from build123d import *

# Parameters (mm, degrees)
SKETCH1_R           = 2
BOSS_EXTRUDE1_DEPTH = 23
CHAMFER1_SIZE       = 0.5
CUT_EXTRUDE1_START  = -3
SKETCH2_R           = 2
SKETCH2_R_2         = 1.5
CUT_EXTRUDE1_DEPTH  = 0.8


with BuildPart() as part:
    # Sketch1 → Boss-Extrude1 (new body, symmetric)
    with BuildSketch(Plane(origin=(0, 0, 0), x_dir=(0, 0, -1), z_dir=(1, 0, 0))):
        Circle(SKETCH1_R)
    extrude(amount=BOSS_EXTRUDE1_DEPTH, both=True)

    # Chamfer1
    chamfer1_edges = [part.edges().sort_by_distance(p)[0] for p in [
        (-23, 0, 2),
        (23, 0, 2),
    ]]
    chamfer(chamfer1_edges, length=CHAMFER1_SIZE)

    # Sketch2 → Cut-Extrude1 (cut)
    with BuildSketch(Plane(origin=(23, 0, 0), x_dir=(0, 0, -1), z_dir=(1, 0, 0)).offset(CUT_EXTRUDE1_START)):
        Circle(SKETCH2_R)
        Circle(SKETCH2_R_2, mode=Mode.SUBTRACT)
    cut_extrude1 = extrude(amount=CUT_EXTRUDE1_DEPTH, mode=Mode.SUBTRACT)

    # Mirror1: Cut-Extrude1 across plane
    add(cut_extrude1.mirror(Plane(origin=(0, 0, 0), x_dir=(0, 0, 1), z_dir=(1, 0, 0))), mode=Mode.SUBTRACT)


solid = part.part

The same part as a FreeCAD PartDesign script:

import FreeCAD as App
import Part
import Sketcher
from FreeCAD import Vector
Q = App.Units.Quantity


def edges_at(feature, points):
    """Names of the edges that pass closest to the given points."""
    edges = feature.Shape.Edges
    near = lambda p: min(range(len(edges)), key=lambda i: edges[i].distToShape(Part.Vertex(*p))[0])
    return sorted({f"Edge{near(p) + 1}" for p in points})

doc = App.newDocument("Part")
body = doc.addObject("PartDesign::Body", "Body")

# Sketch on YZ plane
sketch1 = body.newObject("Sketcher::SketchObject", "Sketch")
sketch1.AttachmentSupport = (doc.getObject("YZ_Plane"), [""])
sketch1.MapMode = "FlatFace"
sketch1.addGeometry(Part.Circle(Vector(0, 0, 0), Vector(0, 0, 1), 2), False)
sketch1.addConstraint(Sketcher.Constraint("Coincident", 0, 3, -1, 1))
sketch1.addConstraint(Sketcher.Constraint("Diameter", 0, Q("4 mm")))
pad1 = body.newObject("PartDesign::Pad", "Pad")
pad1.Profile = sketch1
pad1.Length = 46
pad1.Midplane = True
doc.recompute()

chamfer = body.newObject("PartDesign::Chamfer", "Chamfer")
chamfer.Base = (pad1, edges_at(pad1, [(-23, 0, 2), (23, 0, 2)]))
chamfer.Size = 0.5

# Sketch on YZ plane
sketch2 = body.newObject("Sketcher::SketchObject", "Sketch001")
sketch2.AttachmentSupport = (doc.getObject("YZ_Plane"), [""])
sketch2.MapMode = "FlatFace"
sketch2.AttachmentOffset = App.Placement(Vector(0, 0, 20), App.Rotation())
sketch2.addGeometry(Part.Circle(Vector(0, 0, 0), Vector(0, 0, 1), 2), False)
sketch2.addGeometry(Part.Circle(Vector(0, 0, 0), Vector(0, 0, 1), 1.5), False)
sketch2.addConstraint(Sketcher.Constraint("Coincident", 0, 3, -1, 1))
sketch2.addConstraint(Sketcher.Constraint("Coincident", 1, 3, -1, 1))
sketch2.addConstraint(Sketcher.Constraint("Diameter", 0, Q("4 mm")))
sketch2.addConstraint(Sketcher.Constraint("Diameter", 1, Q("3 mm")))
pocket1 = body.newObject("PartDesign::Pocket", "Pocket")
pocket1.Profile = sketch2
pocket1.Length = 0.8
pocket1.Reversed = True
doc.recompute()

mirrored = body.newObject("PartDesign::Mirrored", "Mirrored")
mirrored.Originals = [pocket1]
mirrored.MirrorPlane = (doc.getObject("YZ_Plane"), [""])
body.Tip = mirrored

doc.recompute()
